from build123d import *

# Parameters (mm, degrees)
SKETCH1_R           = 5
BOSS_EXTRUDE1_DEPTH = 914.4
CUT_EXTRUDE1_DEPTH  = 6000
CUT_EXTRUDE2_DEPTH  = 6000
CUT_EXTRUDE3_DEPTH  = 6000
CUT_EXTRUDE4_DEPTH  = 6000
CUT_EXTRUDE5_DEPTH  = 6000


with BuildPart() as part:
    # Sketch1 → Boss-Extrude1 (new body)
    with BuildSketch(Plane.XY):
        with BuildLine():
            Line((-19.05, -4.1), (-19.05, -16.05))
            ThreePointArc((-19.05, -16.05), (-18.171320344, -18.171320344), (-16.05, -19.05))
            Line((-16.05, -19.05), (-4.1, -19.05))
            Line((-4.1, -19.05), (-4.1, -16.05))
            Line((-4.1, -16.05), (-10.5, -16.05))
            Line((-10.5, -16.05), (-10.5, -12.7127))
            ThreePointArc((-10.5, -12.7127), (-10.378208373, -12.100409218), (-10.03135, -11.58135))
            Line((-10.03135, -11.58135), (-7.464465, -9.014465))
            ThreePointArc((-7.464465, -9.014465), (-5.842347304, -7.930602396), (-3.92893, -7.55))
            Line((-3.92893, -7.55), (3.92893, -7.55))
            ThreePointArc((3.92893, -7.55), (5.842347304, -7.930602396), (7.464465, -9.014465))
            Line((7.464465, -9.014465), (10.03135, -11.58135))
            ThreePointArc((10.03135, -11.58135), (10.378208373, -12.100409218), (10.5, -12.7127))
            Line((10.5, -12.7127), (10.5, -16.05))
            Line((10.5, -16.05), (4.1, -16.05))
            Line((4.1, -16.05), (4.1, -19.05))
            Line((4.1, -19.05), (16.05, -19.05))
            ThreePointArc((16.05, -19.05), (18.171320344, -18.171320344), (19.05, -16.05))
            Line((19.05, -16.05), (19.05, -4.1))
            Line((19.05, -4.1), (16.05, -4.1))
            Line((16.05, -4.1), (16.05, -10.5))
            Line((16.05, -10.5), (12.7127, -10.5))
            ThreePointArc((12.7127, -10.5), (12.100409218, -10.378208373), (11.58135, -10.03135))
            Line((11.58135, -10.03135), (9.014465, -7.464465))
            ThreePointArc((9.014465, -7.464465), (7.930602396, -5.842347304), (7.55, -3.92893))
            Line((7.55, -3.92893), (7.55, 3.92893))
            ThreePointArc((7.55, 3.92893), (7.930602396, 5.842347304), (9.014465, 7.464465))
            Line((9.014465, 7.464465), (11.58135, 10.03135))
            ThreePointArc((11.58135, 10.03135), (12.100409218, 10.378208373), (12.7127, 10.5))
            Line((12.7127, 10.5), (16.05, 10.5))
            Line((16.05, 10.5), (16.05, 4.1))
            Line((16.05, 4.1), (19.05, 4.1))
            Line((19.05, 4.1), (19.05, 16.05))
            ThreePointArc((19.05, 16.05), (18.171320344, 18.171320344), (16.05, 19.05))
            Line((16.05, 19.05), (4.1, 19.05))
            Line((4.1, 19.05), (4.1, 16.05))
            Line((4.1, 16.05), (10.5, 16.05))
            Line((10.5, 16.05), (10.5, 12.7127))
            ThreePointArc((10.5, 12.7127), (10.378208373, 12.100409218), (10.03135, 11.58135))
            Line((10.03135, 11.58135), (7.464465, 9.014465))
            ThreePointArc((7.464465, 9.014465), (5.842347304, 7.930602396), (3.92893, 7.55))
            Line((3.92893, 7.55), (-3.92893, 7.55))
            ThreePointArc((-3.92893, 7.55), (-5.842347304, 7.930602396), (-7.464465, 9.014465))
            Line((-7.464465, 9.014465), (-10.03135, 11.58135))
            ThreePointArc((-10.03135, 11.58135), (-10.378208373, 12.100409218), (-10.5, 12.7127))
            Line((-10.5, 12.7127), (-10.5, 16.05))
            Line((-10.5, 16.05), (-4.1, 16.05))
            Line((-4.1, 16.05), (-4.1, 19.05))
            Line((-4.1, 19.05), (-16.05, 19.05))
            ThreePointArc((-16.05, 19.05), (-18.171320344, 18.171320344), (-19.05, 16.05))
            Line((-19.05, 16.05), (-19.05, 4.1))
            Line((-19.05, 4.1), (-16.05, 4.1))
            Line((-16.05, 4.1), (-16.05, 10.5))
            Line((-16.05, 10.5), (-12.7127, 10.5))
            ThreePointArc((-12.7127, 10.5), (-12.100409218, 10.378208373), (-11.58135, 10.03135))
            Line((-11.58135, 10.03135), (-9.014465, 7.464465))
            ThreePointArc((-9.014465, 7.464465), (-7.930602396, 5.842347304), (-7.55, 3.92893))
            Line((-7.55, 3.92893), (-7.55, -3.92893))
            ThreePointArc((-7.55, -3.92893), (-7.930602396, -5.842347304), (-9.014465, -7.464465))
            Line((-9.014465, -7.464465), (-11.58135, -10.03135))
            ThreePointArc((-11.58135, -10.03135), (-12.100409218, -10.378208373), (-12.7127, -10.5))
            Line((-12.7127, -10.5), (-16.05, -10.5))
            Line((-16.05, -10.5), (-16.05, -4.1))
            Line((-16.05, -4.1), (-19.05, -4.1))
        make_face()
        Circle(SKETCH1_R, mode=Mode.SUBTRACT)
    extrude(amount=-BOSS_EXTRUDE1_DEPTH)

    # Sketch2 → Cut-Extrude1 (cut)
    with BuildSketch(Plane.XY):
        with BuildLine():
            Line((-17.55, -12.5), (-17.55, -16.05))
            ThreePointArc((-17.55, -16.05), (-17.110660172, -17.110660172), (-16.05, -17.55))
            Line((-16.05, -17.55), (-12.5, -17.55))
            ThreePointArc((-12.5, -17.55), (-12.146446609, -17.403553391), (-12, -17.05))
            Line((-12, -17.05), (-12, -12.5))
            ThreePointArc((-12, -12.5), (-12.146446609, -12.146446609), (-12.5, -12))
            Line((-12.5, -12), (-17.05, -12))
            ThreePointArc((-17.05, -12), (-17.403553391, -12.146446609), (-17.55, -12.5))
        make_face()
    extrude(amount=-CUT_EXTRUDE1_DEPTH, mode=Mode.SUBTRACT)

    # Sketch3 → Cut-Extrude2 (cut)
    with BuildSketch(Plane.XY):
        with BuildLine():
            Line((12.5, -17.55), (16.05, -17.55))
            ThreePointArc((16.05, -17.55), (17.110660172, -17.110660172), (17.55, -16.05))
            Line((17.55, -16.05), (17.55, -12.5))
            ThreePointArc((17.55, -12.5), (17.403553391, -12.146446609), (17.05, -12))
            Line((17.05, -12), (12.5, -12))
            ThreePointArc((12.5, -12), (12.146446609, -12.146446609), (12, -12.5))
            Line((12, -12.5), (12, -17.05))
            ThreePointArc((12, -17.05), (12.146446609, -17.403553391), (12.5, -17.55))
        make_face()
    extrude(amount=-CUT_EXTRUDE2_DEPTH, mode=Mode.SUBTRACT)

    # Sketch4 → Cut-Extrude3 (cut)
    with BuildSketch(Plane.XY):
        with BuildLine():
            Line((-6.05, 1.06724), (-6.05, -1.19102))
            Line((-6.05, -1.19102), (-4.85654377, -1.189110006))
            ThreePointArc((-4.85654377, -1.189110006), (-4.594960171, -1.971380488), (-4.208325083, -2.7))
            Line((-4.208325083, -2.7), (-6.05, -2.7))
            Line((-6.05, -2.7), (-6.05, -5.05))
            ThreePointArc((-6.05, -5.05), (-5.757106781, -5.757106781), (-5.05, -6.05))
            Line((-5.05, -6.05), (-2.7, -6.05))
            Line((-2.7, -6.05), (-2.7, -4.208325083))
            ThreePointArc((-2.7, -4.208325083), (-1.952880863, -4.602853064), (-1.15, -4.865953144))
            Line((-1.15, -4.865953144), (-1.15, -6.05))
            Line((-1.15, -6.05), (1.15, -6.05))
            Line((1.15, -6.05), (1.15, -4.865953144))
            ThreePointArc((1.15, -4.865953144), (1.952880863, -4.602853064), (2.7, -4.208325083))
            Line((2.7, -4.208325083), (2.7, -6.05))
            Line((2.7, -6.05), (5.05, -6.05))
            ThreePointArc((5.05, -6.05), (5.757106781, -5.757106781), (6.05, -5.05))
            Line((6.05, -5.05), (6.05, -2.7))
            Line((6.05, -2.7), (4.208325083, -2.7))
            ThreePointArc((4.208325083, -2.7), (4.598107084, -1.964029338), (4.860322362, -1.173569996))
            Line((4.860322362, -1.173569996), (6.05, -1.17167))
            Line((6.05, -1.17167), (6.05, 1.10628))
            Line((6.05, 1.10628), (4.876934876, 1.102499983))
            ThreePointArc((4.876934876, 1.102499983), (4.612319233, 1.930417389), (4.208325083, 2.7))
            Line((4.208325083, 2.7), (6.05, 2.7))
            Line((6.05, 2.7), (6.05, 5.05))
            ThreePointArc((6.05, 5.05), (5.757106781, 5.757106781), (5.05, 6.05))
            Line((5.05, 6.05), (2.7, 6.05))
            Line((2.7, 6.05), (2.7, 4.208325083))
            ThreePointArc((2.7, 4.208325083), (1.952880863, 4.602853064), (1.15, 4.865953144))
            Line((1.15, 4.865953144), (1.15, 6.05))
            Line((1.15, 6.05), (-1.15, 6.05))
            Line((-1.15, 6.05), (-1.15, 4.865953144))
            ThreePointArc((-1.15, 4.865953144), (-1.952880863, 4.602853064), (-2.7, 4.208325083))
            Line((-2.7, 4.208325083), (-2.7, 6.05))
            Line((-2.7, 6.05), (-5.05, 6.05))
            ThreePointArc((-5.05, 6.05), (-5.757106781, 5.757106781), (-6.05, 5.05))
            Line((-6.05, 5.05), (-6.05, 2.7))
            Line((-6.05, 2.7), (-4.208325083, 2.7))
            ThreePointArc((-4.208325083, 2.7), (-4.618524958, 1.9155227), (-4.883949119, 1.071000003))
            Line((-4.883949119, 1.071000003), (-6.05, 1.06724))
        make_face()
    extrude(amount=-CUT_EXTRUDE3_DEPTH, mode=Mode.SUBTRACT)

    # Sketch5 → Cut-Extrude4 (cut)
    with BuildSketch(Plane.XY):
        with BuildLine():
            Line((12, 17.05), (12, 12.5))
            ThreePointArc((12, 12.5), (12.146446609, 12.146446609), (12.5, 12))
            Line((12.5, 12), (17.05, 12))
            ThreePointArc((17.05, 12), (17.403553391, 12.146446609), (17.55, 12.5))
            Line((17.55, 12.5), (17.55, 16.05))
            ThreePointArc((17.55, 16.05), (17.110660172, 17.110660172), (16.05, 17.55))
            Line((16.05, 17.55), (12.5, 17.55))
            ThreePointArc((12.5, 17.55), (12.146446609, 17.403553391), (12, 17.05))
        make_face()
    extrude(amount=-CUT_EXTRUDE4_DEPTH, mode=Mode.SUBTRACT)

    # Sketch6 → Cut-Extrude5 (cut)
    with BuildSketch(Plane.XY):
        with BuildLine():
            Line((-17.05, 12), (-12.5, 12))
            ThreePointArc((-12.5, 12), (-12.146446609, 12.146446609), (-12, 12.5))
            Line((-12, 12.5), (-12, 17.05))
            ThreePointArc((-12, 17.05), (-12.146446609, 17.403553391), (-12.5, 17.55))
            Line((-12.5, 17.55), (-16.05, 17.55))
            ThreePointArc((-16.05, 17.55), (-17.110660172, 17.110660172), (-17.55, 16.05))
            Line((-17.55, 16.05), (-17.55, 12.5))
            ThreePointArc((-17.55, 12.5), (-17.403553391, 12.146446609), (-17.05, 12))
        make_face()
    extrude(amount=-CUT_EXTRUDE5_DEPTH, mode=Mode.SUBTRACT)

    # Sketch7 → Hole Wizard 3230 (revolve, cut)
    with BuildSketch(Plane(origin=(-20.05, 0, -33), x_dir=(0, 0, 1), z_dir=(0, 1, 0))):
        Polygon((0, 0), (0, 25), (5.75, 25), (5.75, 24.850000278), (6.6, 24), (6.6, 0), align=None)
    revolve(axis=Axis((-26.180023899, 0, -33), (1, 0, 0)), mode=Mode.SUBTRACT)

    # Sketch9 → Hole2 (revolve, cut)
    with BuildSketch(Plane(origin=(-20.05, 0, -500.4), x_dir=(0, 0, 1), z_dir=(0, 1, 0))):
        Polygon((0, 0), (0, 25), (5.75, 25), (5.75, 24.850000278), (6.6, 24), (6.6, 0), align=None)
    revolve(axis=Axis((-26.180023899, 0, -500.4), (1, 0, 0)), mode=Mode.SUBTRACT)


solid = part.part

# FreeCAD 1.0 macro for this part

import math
import FreeCAD as App
import Part
import Sketcher

V = App.Vector
Q = App.Units.Quantity


def add_polygon(sketch, points):
    """Adds a closed chain of lines whose ends are joined by coincident constraints."""
    first, n = sketch.GeometryCount, len(points)
    for a, b in zip(points, points[1:] + points[:1]):
        sketch.addGeometry(Part.LineSegment(App.Vector(*a, 0), App.Vector(*b, 0)), False)
    for i in range(n):
        sketch.addConstraint(Sketcher.Constraint("Coincident", first + i, 2, first + (i + 1) % n, 1))

doc = App.newDocument("Part")
body = doc.addObject("PartDesign::Body", "Body")

sketch1 = body.newObject("Sketcher::SketchObject", "Sketch")
sketch1.AttachmentSupport = (doc.getObject("XY_Plane"), [""])
sketch1.MapMode = "FlatFace"
sketch1.addGeometry(Part.LineSegment(V(-19.1, -4.1, 0), V(-19.1, -16.1, 0)), False)
sketch1.addGeometry(Part.ArcOfCircle(Part.Circle(V(-16.1, -16.1, 0), V(0, 0, 1), 3), math.radians(180), math.radians(270)), False)
sketch1.addGeometry(Part.LineSegment(V(-16.1, -19.1, 0), V(-4.1, -19.1, 0)), False)
sketch1.addGeometry(Part.LineSegment(V(-4.1, -19.1, 0), V(-4.1, -16.1, 0)), False)
sketch1.addGeometry(Part.LineSegment(V(-4.1, -16.1, 0), V(-10.5, -16.1, 0)), False)
sketch1.addGeometry(Part.LineSegment(V(-10.5, -16.1, 0), V(-10.5, -12.7, 0)), False)
sketch1.addGeometry(Part.ArcOfCircle(Part.Circle(V(-8.9, -12.7, 0), V(0, 0, 1), 1.6), math.radians(135), math.radians(180)), False)
sketch1.addGeometry(Part.LineSegment(V(-10, -11.6, 0), V(-7.5, -9, 0)), False)
sketch1.addGeometry(Part.ArcOfCircle(Part.Circle(V(-3.9, -12.6, 0), V(0, 0, 1), 5), math.radians(90), math.radians(135)), False)
sketch1.addGeometry(Part.LineSegment(V(-3.9, -7.5, 0), V(3.9, -7.5, 0)), False)
sketch1.addGeometry(Part.ArcOfCircle(Part.Circle(V(3.9, -12.6, 0), V(0, 0, 1), 5), math.radians(45), math.radians(90)), False)
sketch1.addGeometry(Part.LineSegment(V(7.5, -9, 0), V(10, -11.6, 0)), False)
sketch1.addGeometry(Part.ArcOfCircle(Part.Circle(V(8.9, -12.7, 0), V(0, 0, 1), 1.6), math.radians(0), math.radians(45)), False)
sketch1.addGeometry(Part.LineSegment(V(10.5, -12.7, 0), V(10.5, -16.1, 0)), False)
sketch1.addGeometry(Part.LineSegment(V(10.5, -16.1, 0), V(4.1, -16.1, 0)), False)
sketch1.addGeometry(Part.LineSegment(V(4.1, -16.1, 0), V(4.1, -19.1, 0)), False)
sketch1.addGeometry(Part.LineSegment(V(4.1, -19.1, 0), V(16.1, -19.1, 0)), False)
sketch1.addGeometry(Part.ArcOfCircle(Part.Circle(V(16.1, -16.1, 0), V(0, 0, 1), 3), math.radians(-90), math.radians(0)), False)
sketch1.addGeometry(Part.LineSegment(V(19.1, -16.1, 0), V(19.1, -4.1, 0)), False)
sketch1.addGeometry(Part.LineSegment(V(19.1, -4.1, 0), V(16.1, -4.1, 0)), False)
sketch1.addGeometry(Part.LineSegment(V(16.1, -4.1, 0), V(16.1, -10.5, 0)), False)
sketch1.addGeometry(Part.LineSegment(V(16.1, -10.5, 0), V(12.7, -10.5, 0)), False)
sketch1.addGeometry(Part.ArcOfCircle(Part.Circle(V(12.7, -8.9, 0), V(0, 0, 1), 1.6), math.radians(-135), math.radians(-90)), False)
sketch1.addGeometry(Part.LineSegment(V(11.6, -10, 0), V(9, -7.5, 0)), False)
sketch1.addGeometry(Part.ArcOfCircle(Part.Circle(V(12.6, -3.9, 0), V(0, 0, 1), 5), math.radians(-180), math.radians(-135)), False)
sketch1.addGeometry(Part.LineSegment(V(7.5, -3.9, 0), V(7.5, 3.9, 0)), False)
sketch1.addGeometry(Part.ArcOfCircle(Part.Circle(V(12.6, 3.9, 0), V(0, 0, 1), 5), math.radians(135), math.radians(180)), False)
sketch1.addGeometry(Part.LineSegment(V(9, 7.5, 0), V(11.6, 10, 0)), False)
sketch1.addGeometry(Part.ArcOfCircle(Part.Circle(V(12.7, 8.9, 0), V(0, 0, 1), 1.6), math.radians(90), math.radians(135)), False)
sketch1.addGeometry(Part.LineSegment(V(12.7, 10.5, 0), V(16.1, 10.5, 0)), False)
sketch1.addGeometry(Part.LineSegment(V(16.1, 10.5, 0), V(16.1, 4.1, 0)), False)
sketch1.addGeometry(Part.LineSegment(V(16.1, 4.1, 0), V(19.1, 4.1, 0)), False)
sketch1.addGeometry(Part.LineSegment(V(19.1, 4.1, 0), V(19.1, 16.1, 0)), False)
sketch1.addGeometry(Part.ArcOfCircle(Part.Circle(V(16.1, 16.1, 0), V(0, 0, 1), 3), math.radians(0), math.radians(90)), False)
sketch1.addGeometry(Part.LineSegment(V(16.1, 19.1, 0), V(4.1, 19.1, 0)), False)
sketch1.addGeometry(Part.LineSegment(V(4.1, 19.1, 0), V(4.1, 16.1, 0)), False)
sketch1.addGeometry(Part.LineSegment(V(4.1, 16.1, 0), V(10.5, 16.1, 0)), False)
sketch1.addGeometry(Part.LineSegment(V(10.5, 16.1, 0), V(10.5, 12.7, 0)), False)
sketch1.addGeometry(Part.ArcOfCircle(Part.Circle(V(8.9, 12.7, 0), V(0, 0, 1), 1.6), math.radians(-45), math.radians(0)), False)
sketch1.addGeometry(Part.LineSegment(V(10, 11.6, 0), V(7.5, 9, 0)), False)
sketch1.addGeometry(Part.ArcOfCircle(Part.Circle(V(3.9, 12.6, 0), V(0, 0, 1), 5), math.radians(-90), math.radians(-45)), False)
sketch1.addGeometry(Part.LineSegment(V(3.9, 7.5, 0), V(-3.9, 7.5, 0)), False)
sketch1.addGeometry(Part.ArcOfCircle(Part.Circle(V(-3.9, 12.6, 0), V(0, 0, 1), 5), math.radians(-135), math.radians(-90)), False)
sketch1.addGeometry(Part.LineSegment(V(-7.5, 9, 0), V(-10, 11.6, 0)), False)
sketch1.addGeometry(Part.ArcOfCircle(Part.Circle(V(-8.9, 12.7, 0), V(0, 0, 1), 1.6), math.radians(180), math.radians(225)), False)
sketch1.addGeometry(Part.LineSegment(V(-10.5, 12.7, 0), V(-10.5, 16.1, 0)), False)
sketch1.addGeometry(Part.LineSegment(V(-10.5, 16.1, 0), V(-4.1, 16.1, 0)), False)
sketch1.addGeometry(Part.LineSegment(V(-4.1, 16.1, 0), V(-4.1, 19.1, 0)), False)
sketch1.addGeometry(Part.LineSegment(V(-4.1, 19.1, 0), V(-16.1, 19.1, 0)), False)
sketch1.addGeometry(Part.ArcOfCircle(Part.Circle(V(-16.1, 16.1, 0), V(0, 0, 1), 3), math.radians(90), math.radians(180)), False)
sketch1.addGeometry(Part.LineSegment(V(-19.1, 16.1, 0), V(-19.1, 4.1, 0)), False)
sketch1.addGeometry(Part.LineSegment(V(-19.1, 4.1, 0), V(-16.1, 4.1, 0)), False)
sketch1.addGeometry(Part.LineSegment(V(-16.1, 4.1, 0), V(-16.1, 10.5, 0)), False)
sketch1.addGeometry(Part.LineSegment(V(-16.1, 10.5, 0), V(-12.7, 10.5, 0)), False)
sketch1.addGeometry(Part.ArcOfCircle(Part.Circle(V(-12.7, 8.9, 0), V(0, 0, 1), 1.6), math.radians(45), math.radians(90)), False)
sketch1.addGeometry(Part.LineSegment(V(-11.6, 10, 0), V(-9, 7.5, 0)), False)
sketch1.addGeometry(Part.ArcOfCircle(Part.Circle(V(-12.6, 3.9, 0), V(0, 0, 1), 5), math.radians(0), math.radians(45)), False)
sketch1.addGeometry(Part.LineSegment(V(-7.5, 3.9, 0), V(-7.5, -3.9, 0)), False)
sketch1.addGeometry(Part.ArcOfCircle(Part.Circle(V(-12.6, -3.9, 0), V(0, 0, 1), 5), math.radians(-45), math.radians(0)), False)
sketch1.addGeometry(Part.LineSegment(V(-9, -7.5, 0), V(-11.6, -10, 0)), False)
sketch1.addGeometry(Part.ArcOfCircle(Part.Circle(V(-12.7, -8.9, 0), V(0, 0, 1), 1.6), math.radians(-90), math.radians(-45)), False)
sketch1.addGeometry(Part.LineSegment(V(-12.7, -10.5, 0), V(-16.1, -10.5, 0)), False)
sketch1.addGeometry(Part.LineSegment(V(-16.1, -10.5, 0), V(-16.1, -4.1, 0)), False)
sketch1.addGeometry(Part.LineSegment(V(-16.1, -4.1, 0), V(-19.1, -4.1, 0)), False)
sketch1.addGeometry(Part.Circle(V(0, 0, 0), V(0, 0, 1), 5), False)
sketch1.addConstraint(Sketcher.Constraint("Tangent", 0, 2, 1, 1))
sketch1.addConstraint(Sketcher.Constraint("Tangent", 1, 2, 2, 1))
sketch1.addConstraint(Sketcher.Constraint("Coincident", 2, 2, 3, 1))
sketch1.addConstraint(Sketcher.Constraint("Coincident", 3, 2, 4, 1))
sketch1.addConstraint(Sketcher.Constraint("Coincident", 4, 2, 5, 1))
sketch1.addConstraint(Sketcher.Constraint("Coincident", 5, 2, 6, 2))
sketch1.addConstraint(Sketcher.Constraint("Coincident", 6, 1, 7, 1))
sketch1.addConstraint(Sketcher.Constraint("Tangent", 7, 2, 8, 2))
sketch1.addConstraint(Sketcher.Constraint("Tangent", 8, 1, 9, 1))
sketch1.addConstraint(Sketcher.Constraint("Tangent", 9, 2, 10, 2))
sketch1.addConstraint(Sketcher.Constraint("Tangent", 10, 1, 11, 1))
sketch1.addConstraint(Sketcher.Constraint("Coincident", 11, 2, 12, 2))
sketch1.addConstraint(Sketcher.Constraint("Coincident", 12, 1, 13, 1))
sketch1.addConstraint(Sketcher.Constraint("Coincident", 13, 2, 14, 1))
sketch1.addConstraint(Sketcher.Constraint("Coincident", 14, 2, 15, 1))
sketch1.addConstraint(Sketcher.Constraint("Coincident", 15, 2, 16, 1))
sketch1.addConstraint(Sketcher.Constraint("Tangent", 16, 2, 17, 1))
sketch1.addConstraint(Sketcher.Constraint("Tangent", 17, 2, 18, 1))
sketch1.addConstraint(Sketcher.Constraint("Coincident", 18, 2, 19, 1))
sketch1.addConstraint(Sketcher.Constraint("Coincident", 19, 2, 20, 1))
sketch1.addConstraint(Sketcher.Constraint("Coincident", 20, 2, 21, 1))
sketch1.addConstraint(Sketcher.Constraint("Coincident", 21, 2, 22, 2))
sketch1.addConstraint(Sketcher.Constraint("Coincident", 22, 1, 23, 1))
sketch1.addConstraint(Sketcher.Constraint("Tangent", 23, 2, 24, 2))
sketch1.addConstraint(Sketcher.Constraint("Tangent", 24, 1, 25, 1))
sketch1.addConstraint(Sketcher.Constraint("Tangent", 25, 2, 26, 2))
sketch1.addConstraint(Sketcher.Constraint("Tangent", 26, 1, 27, 1))
sketch1.addConstraint(Sketcher.Constraint("Coincident", 27, 2, 28, 2))
sketch1.addConstraint(Sketcher.Constraint("Coincident", 28, 1, 29, 1))
sketch1.addConstraint(Sketcher.Constraint("Coincident", 29, 2, 30, 1))
sketch1.addConstraint(Sketcher.Constraint("Coincident", 30, 2, 31, 1))
sketch1.addConstraint(Sketcher.Constraint("Coincident", 31, 2, 32, 1))
sketch1.addConstraint(Sketcher.Constraint("Tangent", 32, 2, 33, 1))
sketch1.addConstraint(Sketcher.Constraint("Tangent", 33, 2, 34, 1))
sketch1.addConstraint(Sketcher.Constraint("Coincident", 34, 2, 35, 1))
sketch1.addConstraint(Sketcher.Constraint("Coincident", 35, 2, 36, 1))
sketch1.addConstraint(Sketcher.Constraint("Coincident", 36, 2, 37, 1))
sketch1.addConstraint(Sketcher.Constraint("Coincident", 37, 2, 38, 2))
sketch1.addConstraint(Sketcher.Constraint("Coincident", 38, 1, 39, 1))
sketch1.addConstraint(Sketcher.Constraint("Tangent", 39, 2, 40, 2))
sketch1.addConstraint(Sketcher.Constraint("Tangent", 40, 1, 41, 1))
sketch1.addConstraint(Sketcher.Constraint("Tangent", 41, 2, 42, 2))
sketch1.addConstraint(Sketcher.Constraint("Tangent", 42, 1, 43, 1))
sketch1.addConstraint(Sketcher.Constraint("Coincident", 43, 2, 44, 2))
sketch1.addConstraint(Sketcher.Constraint("Coincident", 44, 1, 45, 1))
sketch1.addConstraint(Sketcher.Constraint("Coincident", 45, 2, 46, 1))
sketch1.addConstraint(Sketcher.Constraint("Coincident", 46, 2, 47, 1))
sketch1.addConstraint(Sketcher.Constraint("Coincident", 47, 2, 48, 1))
sketch1.addConstraint(Sketcher.Constraint("Tangent", 48, 2, 49, 1))
sketch1.addConstraint(Sketcher.Constraint("Tangent", 49, 2, 50, 1))
sketch1.addConstraint(Sketcher.Constraint("Coincident", 50, 2, 51, 1))
sketch1.addConstraint(Sketcher.Constraint("Coincident", 51, 2, 52, 1))
sketch1.addConstraint(Sketcher.Constraint("Coincident", 52, 2, 53, 1))
sketch1.addConstraint(Sketcher.Constraint("Coincident", 53, 2, 54, 2))
sketch1.addConstraint(Sketcher.Constraint("Coincident", 54, 1, 55, 1))
sketch1.addConstraint(Sketcher.Constraint("Tangent", 55, 2, 56, 2))
sketch1.addConstraint(Sketcher.Constraint("Tangent", 56, 1, 57, 1))
sketch1.addConstraint(Sketcher.Constraint("Tangent", 57, 2, 58, 2))
sketch1.addConstraint(Sketcher.Constraint("Tangent", 58, 1, 59, 1))
sketch1.addConstraint(Sketcher.Constraint("Coincident", 59, 2, 60, 2))
sketch1.addConstraint(Sketcher.Constraint("Coincident", 60, 1, 61, 1))
sketch1.addConstraint(Sketcher.Constraint("Coincident", 61, 2, 62, 1))
sketch1.addConstraint(Sketcher.Constraint("Coincident", 62, 2, 63, 1))
sketch1.addConstraint(Sketcher.Constraint("Coincident", 63, 2, 0, 1))
sketch1.addConstraint(Sketcher.Constraint("Vertical", 0))
sketch1.addConstraint(Sketcher.Constraint("Horizontal", 2))
sketch1.addConstraint(Sketcher.Constraint("Vertical", 3))
sketch1.addConstraint(Sketcher.Constraint("Horizontal", 4))
sketch1.addConstraint(Sketcher.Constraint("Vertical", 5))
sketch1.addConstraint(Sketcher.Constraint("Horizontal", 9))
sketch1.addConstraint(Sketcher.Constraint("Vertical", 13))
sketch1.addConstraint(Sketcher.Constraint("Horizontal", 14))
sketch1.addConstraint(Sketcher.Constraint("Vertical", 15))
sketch1.addConstraint(Sketcher.Constraint("Horizontal", 16))
sketch1.addConstraint(Sketcher.Constraint("Vertical", 18))
sketch1.addConstraint(Sketcher.Constraint("Horizontal", 19))
sketch1.addConstraint(Sketcher.Constraint("Vertical", 20))
sketch1.addConstraint(Sketcher.Constraint("Horizontal", 21))
sketch1.addConstraint(Sketcher.Constraint("Vertical", 25))
sketch1.addConstraint(Sketcher.Constraint("Horizontal", 29))
sketch1.addConstraint(Sketcher.Constraint("Vertical", 30))
sketch1.addConstraint(Sketcher.Constraint("Horizontal", 31))
sketch1.addConstraint(Sketcher.Constraint("Vertical", 32))
sketch1.addConstraint(Sketcher.Constraint("Horizontal", 34))
sketch1.addConstraint(Sketcher.Constraint("Vertical", 35))
sketch1.addConstraint(Sketcher.Constraint("Horizontal", 36))
sketch1.addConstraint(Sketcher.Constraint("Vertical", 37))
sketch1.addConstraint(Sketcher.Constraint("Horizontal", 41))
sketch1.addConstraint(Sketcher.Constraint("Vertical", 45))
sketch1.addConstraint(Sketcher.Constraint("Horizontal", 46))
sketch1.addConstraint(Sketcher.Constraint("Vertical", 47))
sketch1.addConstraint(Sketcher.Constraint("Horizontal", 48))
sketch1.addConstraint(Sketcher.Constraint("Vertical", 50))
sketch1.addConstraint(Sketcher.Constraint("Horizontal", 51))
sketch1.addConstraint(Sketcher.Constraint("Vertical", 52))
sketch1.addConstraint(Sketcher.Constraint("Horizontal", 53))
sketch1.addConstraint(Sketcher.Constraint("Vertical", 57))
sketch1.addConstraint(Sketcher.Constraint("Horizontal", 61))
sketch1.addConstraint(Sketcher.Constraint("Vertical", 62))
sketch1.addConstraint(Sketcher.Constraint("Horizontal", 63))
sketch1.addConstraint(Sketcher.Constraint("Coincident", 64, 3, -1, 1))
sketch1.addConstraint(Sketcher.Constraint("Equal", 8, 10))
sketch1.addConstraint(Sketcher.Constraint("Equal", 6, 12))
sketch1.addConstraint(Sketcher.Constraint("Equal", 1, 17))
sketch1.addConstraint(Sketcher.Constraint("Equal", 12, 22))
sketch1.addConstraint(Sketcher.Constraint("Equal", 10, 24))
sketch1.addConstraint(Sketcher.Constraint("Equal", 24, 26))
sketch1.addConstraint(Sketcher.Constraint("Equal", 22, 28))
sketch1.addConstraint(Sketcher.Constraint("Equal", 17, 33))
sketch1.addConstraint(Sketcher.Constraint("Equal", 28, 38))
sketch1.addConstraint(Sketcher.Constraint("Equal", 26, 40))
sketch1.addConstraint(Sketcher.Constraint("Equal", 40, 42))
sketch1.addConstraint(Sketcher.Constraint("Equal", 38, 44))
sketch1.addConstraint(Sketcher.Constraint("Equal", 33, 49))
sketch1.addConstraint(Sketcher.Constraint("Equal", 44, 54))
sketch1.addConstraint(Sketcher.Constraint("Equal", 42, 56))
sketch1.addConstraint(Sketcher.Constraint("Equal", 56, 58))
sketch1.addConstraint(Sketcher.Constraint("Equal", 54, 60))
sketch1.addConstraint(Sketcher.Constraint("Symmetric", 1, 3, 33, 3, -1, 1))
sketch1.addConstraint(Sketcher.Constraint("Symmetric", 6, 3, 38, 3, -1, 1))
sketch1.addConstraint(Sketcher.Constraint("Symmetric", 8, 3, 40, 3, -1, 1))
sketch1.addConstraint(Sketcher.Constraint("Symmetric", 12, 3, 44, 3, -1, 1))
sketch1.addConstraint(Sketcher.Constraint("Symmetric", 17, 3, 49, 3, -1, 1))
sketch1.addConstraint(Sketcher.Constraint("Symmetric", 22, 3, 54, 3, -1, 1))
sketch1.addConstraint(Sketcher.Constraint("Symmetric", 24, 3, 56, 3, -1, 1))
sketch1.addConstraint(Sketcher.Constraint("Symmetric", 28, 3, 60, 3, -1, 1))
sketch1.addConstraint(Sketcher.Constraint("Symmetric", 3, 2, 35, 2, -1, 1))
sketch1.addConstraint(Sketcher.Constraint("Symmetric", 14, 2, 46, 2, -1, 1))
sketch1.addConstraint(Sketcher.Constraint("Symmetric", 19, 2, 51, 2, -1, 1))
sketch1.addConstraint(Sketcher.Constraint("Symmetric", 30, 2, 62, 2, -1, 1))
sketch1.addConstraint(Sketcher.Constraint("Symmetric", 6, 3, 12, 3, -2))
sketch1.addConstraint(Sketcher.Constraint("Symmetric", 1, 3, 17, 3, -2))
sketch1.addConstraint(Sketcher.Constraint("Symmetric", 28, 3, 54, 3, -2))
sketch1.addConstraint(Sketcher.Constraint("Symmetric", 3, 2, 14, 2, -2))
sketch1.addConstraint(Sketcher.Constraint("Symmetric", 30, 2, 51, 2, -2))
sketch1.addConstraint(Sketcher.Constraint("Perpendicular", 7, 11))
sketch1.addConstraint(Sketcher.Constraint("Parallel", 11, 23))
sketch1.addConstraint(Sketcher.Constraint("Perpendicular", 23, 27))
sketch1.addConstraint(Sketcher.Constraint("Perpendicular", 39, 43))
sketch1.addConstraint(Sketcher.Constraint("Perpendicular", 55, 59))
sketch1.addConstraint(Sketcher.Constraint("Horizontal", 26, 3, 56, 3))
sketch1.addConstraint(Sketcher.Constraint("Horizontal", 0, 2, 3, 2))
sketch1.addConstraint(Sketcher.Constraint("Horizontal", 6, 1, 11, 2))
sketch1.addConstraint(Sketcher.Constraint("Horizontal", 5, 2, 12, 1))
sketch1.addConstraint(Sketcher.Constraint("Horizontal", 38, 1, 43, 2))
sketch1.addConstraint(Sketcher.Constraint("Horizontal", 37, 2, 44, 1))
sketch1.addConstraint(Sketcher.Constraint("Horizontal", 27, 2, 54, 1))
sketch1.addConstraint(Sketcher.Constraint("Horizontal", 22, 1, 59, 2))
sketch1.addConstraint(Sketcher.Constraint("Vertical", 16, 2, 19, 2))
sketch1.addConstraint(Sketcher.Constraint("Vertical", 22, 1, 27, 2))
sketch1.addConstraint(Sketcher.Constraint("Vertical", 21, 2, 28, 1))
sketch1.addConstraint(Sketcher.Constraint("Vertical", 11, 2, 38, 1))
sketch1.addConstraint(Sketcher.Constraint("Vertical", 53, 2, 60, 1))
sketch1.addConstraint(Sketcher.Constraint("Equal", 29, 53))
sketch1.addConstraint(Sketcher.Constraint("Equal", 48, 0))
sketch1.addConstraint(Sketcher.Constraint("Equal", 61, 5))
sketch1.addConstraint(Sketcher.Constraint("Equal", 46, 20))
sketch1.addConstraint(Sketcher.Constraint("Equal", 41, 25))
sketch1.addConstraint(Sketcher.Constraint("Equal", 13, 37))
sketch1.addConstraint(Sketcher.Constraint("Equal", 11, 23))
sketch1.addConstraint(Sketcher.Constraint("Diameter", 64, 10.0))
sketch1.addConstraint(Sketcher.Constraint("Radius", 1, 3.0))
sketch1.addConstraint(Sketcher.Constraint("DistanceX", 4, 2, 4, 1, 6.4))
sketch1.addConstraint(Sketcher.Constraint("DistanceX", 2, 1, 2, 2, 11.95))
sketch1.addConstraint(Sketcher.Constraint("DistanceX", 2, 2, -1, 1, 4.1))
sketch1.addConstraint(Sketcher.Constraint("DistanceY", 18, 2, -1, 1, 4.1))
sketch1.addConstraint(Sketcher.Constraint("DistanceY", 8, 1, -1, 1, 7.55))
sketch1.addConstraint(Sketcher.Constraint("DistanceX", -1, 1, 24, 1, 7.55))
sketch1.addConstraint(Sketcher.Constraint("Radius", 8, 5.00001))
sketch1.addConstraint(Sketcher.Constraint("DistanceX", 21, 2, 21, 1, 3.3373))
sketch1.addConstraint(Sketcher.Constraint("Radius", 6, 1.599806))
sketch1.addConstraint(Sketcher.Constraint("DistanceX", 9, 1, 9, 2, 7.85786))
sketch1.addConstraint(Sketcher.Constraint("DistanceX", 6, 1, -1, 1, 10.03135))
pad1 = body.newObject("PartDesign::Pad", "Pad")
pad1.Profile = sketch1
pad1.Length = 914.4
pad1.Reversed = True

sketch2 = body.newObject("Sketcher::SketchObject", "Sketch001")
sketch2.AttachmentSupport = (doc.getObject("XY_Plane"), [""])
sketch2.MapMode = "FlatFace"
sketch2.addGeometry(Part.LineSegment(V(-17.55, -12.5, 0), V(-17.55, -16.05, 0)), False)
sketch2.addGeometry(Part.ArcOfCircle(Part.Circle(V(-16.05, -16.05, 0), V(0, 0, 1), 1.5), math.radians(180), math.radians(270)), False)
sketch2.addGeometry(Part.LineSegment(V(-16.05, -17.55, 0), V(-12.5, -17.55, 0)), False)
sketch2.addGeometry(Part.ArcOfCircle(Part.Circle(V(-12.5, -17.05, 0), V(0, 0, 1), 0.5), math.radians(-90), math.radians(0)), False)
sketch2.addGeometry(Part.LineSegment(V(-12, -17.05, 0), V(-12, -12.5, 0)), False)
sketch2.addGeometry(Part.ArcOfCircle(Part.Circle(V(-12.5, -12.5, 0), V(0, 0, 1), 0.5), math.radians(0), math.radians(90)), False)
sketch2.addGeometry(Part.LineSegment(V(-12.5, -12, 0), V(-17.05, -12, 0)), False)
sketch2.addGeometry(Part.ArcOfCircle(Part.Circle(V(-17.05, -12.5, 0), V(0, 0, 1), 0.5), math.radians(90), math.radians(180)), False)
sketch2.addConstraint(Sketcher.Constraint("Tangent", 0, 2, 1, 1))
sketch2.addConstraint(Sketcher.Constraint("Tangent", 1, 2, 2, 1))
sketch2.addConstraint(Sketcher.Constraint("Tangent", 2, 2, 3, 1))
sketch2.addConstraint(Sketcher.Constraint("Tangent", 3, 2, 4, 1))
sketch2.addConstraint(Sketcher.Constraint("Tangent", 4, 2, 5, 1))
sketch2.addConstraint(Sketcher.Constraint("Tangent", 5, 2, 6, 1))
sketch2.addConstraint(Sketcher.Constraint("Tangent", 6, 2, 7, 1))
sketch2.addConstraint(Sketcher.Constraint("Tangent", 7, 2, 0, 1))
sketch2.addConstraint(Sketcher.Constraint("Vertical", 0))
sketch2.addConstraint(Sketcher.Constraint("Horizontal", 2))
sketch2.addConstraint(Sketcher.Constraint("Vertical", 4))
sketch2.addConstraint(Sketcher.Constraint("Horizontal", 6))
sketch2.addConstraint(Sketcher.Constraint("Equal", 3, 5))
sketch2.addConstraint(Sketcher.Constraint("Equal", 5, 7))
sketch2.addConstraint(Sketcher.Constraint("Equal", 2, 0))
sketch2.addConstraint(Sketcher.Constraint("Radius", 1, 1.5))
sketch2.addConstraint(Sketcher.Constraint("Radius", 3, 0.5))
sketch2.addConstraint(Sketcher.Constraint("DistanceX", 3, 2, -1, 1, 12.0))
sketch2.addConstraint(Sketcher.Constraint("DistanceY", 5, 2, -1, 1, 12.0))
sketch2.addConstraint(Sketcher.Constraint("DistanceX", 2, 1, 2, 2, 3.55))
pocket1 = body.newObject("PartDesign::Pocket", "Pocket")
pocket1.Profile = sketch2
pocket1.Length = 6000

sketch3 = body.newObject("Sketcher::SketchObject", "Sketch002")
sketch3.AttachmentSupport = (doc.getObject("XY_Plane"), [""])
sketch3.MapMode = "FlatFace"
sketch3.addGeometry(Part.LineSegment(V(12.5, -17.55, 0), V(16.05, -17.55, 0)), False)
sketch3.addGeometry(Part.ArcOfCircle(Part.Circle(V(16.05, -16.05, 0), V(0, 0, 1), 1.5), math.radians(-90), math.radians(0)), False)
sketch3.addGeometry(Part.LineSegment(V(17.55, -16.05, 0), V(17.55, -12.5, 0)), False)
sketch3.addGeometry(Part.ArcOfCircle(Part.Circle(V(17.05, -12.5, 0), V(0, 0, 1), 0.5), math.radians(0), math.radians(90)), False)
sketch3.addGeometry(Part.LineSegment(V(17.05, -12, 0), V(12.5, -12, 0)), False)
sketch3.addGeometry(Part.ArcOfCircle(Part.Circle(V(12.5, -12.5, 0), V(0, 0, 1), 0.5), math.radians(90), math.radians(180)), False)
sketch3.addGeometry(Part.LineSegment(V(12, -12.5, 0), V(12, -17.05, 0)), False)
sketch3.addGeometry(Part.ArcOfCircle(Part.Circle(V(12.5, -17.05, 0), V(0, 0, 1), 0.5), math.radians(180), math.radians(270)), False)
sketch3.addConstraint(Sketcher.Constraint("Tangent", 0, 2, 1, 1))
sketch3.addConstraint(Sketcher.Constraint("Tangent", 1, 2, 2, 1))
sketch3.addConstraint(Sketcher.Constraint("Tangent", 2, 2, 3, 1))
sketch3.addConstraint(Sketcher.Constraint("Tangent", 3, 2, 4, 1))
sketch3.addConstraint(Sketcher.Constraint("Tangent", 4, 2, 5, 1))
sketch3.addConstraint(Sketcher.Constraint("Tangent", 5, 2, 6, 1))
sketch3.addConstraint(Sketcher.Constraint("Tangent", 6, 2, 7, 1))
sketch3.addConstraint(Sketcher.Constraint("Tangent", 7, 2, 0, 1))
sketch3.addConstraint(Sketcher.Constraint("Horizontal", 0))
sketch3.addConstraint(Sketcher.Constraint("Vertical", 2))
sketch3.addConstraint(Sketcher.Constraint("Horizontal", 4))
sketch3.addConstraint(Sketcher.Constraint("Vertical", 6))
sketch3.addConstraint(Sketcher.Constraint("Equal", 3, 5))
sketch3.addConstraint(Sketcher.Constraint("Equal", 5, 7))
sketch3.addConstraint(Sketcher.Constraint("Equal", 0, 2))
sketch3.addConstraint(Sketcher.Constraint("Radius", 1, 1.5))
sketch3.addConstraint(Sketcher.Constraint("Radius", 3, 0.5))
sketch3.addConstraint(Sketcher.Constraint("DistanceY", 3, 2, -1, 1, 12.0))
sketch3.addConstraint(Sketcher.Constraint("DistanceX", -1, 1, 5, 2, 12.0))
sketch3.addConstraint(Sketcher.Constraint("DistanceX", 0, 1, 0, 2, 3.55))
pocket2 = body.newObject("PartDesign::Pocket", "Pocket001")
pocket2.Profile = sketch3
pocket2.Length = 6000

sketch4 = body.newObject("Sketcher::SketchObject", "Sketch003")
sketch4.AttachmentSupport = (doc.getObject("XY_Plane"), [""])
sketch4.MapMode = "FlatFace"
sketch4.addGeometry(Part.LineSegment(V(-6, 1.1, 0), V(-6, -1.2, 0)), False)
sketch4.addGeometry(Part.LineSegment(V(-6, -1.2, 0), V(-4.9, -1.2, 0)), False)
sketch4.addGeometry(Part.ArcOfCircle(Part.Circle(V(0, 0, 0), V(0, 0, 1), 5), math.radians(-166.24), math.radians(-147.32)), False)
sketch4.addGeometry(Part.LineSegment(V(-4.2, -2.7, 0), V(-6, -2.7, 0)), False)
sketch4.addGeometry(Part.LineSegment(V(-6, -2.7, 0), V(-6, -5, 0)), False)
sketch4.addGeometry(Part.ArcOfCircle(Part.Circle(V(-5, -5, 0), V(0, 0, 1), 1), math.radians(-180), math.radians(-90)), False)
sketch4.addGeometry(Part.LineSegment(V(-5, -6, 0), V(-2.7, -6, 0)), False)
sketch4.addGeometry(Part.LineSegment(V(-2.7, -6, 0), V(-2.7, -4.2, 0)), False)
sketch4.addGeometry(Part.ArcOfCircle(Part.Circle(V(0, 0, 0), V(0, 0, 1), 5), math.radians(-122.68), math.radians(-103.3)), False)
sketch4.addGeometry(Part.LineSegment(V(-1.1, -4.9, 0), V(-1.1, -6, 0)), False)
sketch4.addGeometry(Part.LineSegment(V(-1.1, -6, 0), V(1.1, -6, 0)), False)
sketch4.addGeometry(Part.LineSegment(V(1.1, -6, 0), V(1.1, -4.9, 0)), False)
sketch4.addGeometry(Part.ArcOfCircle(Part.Circle(V(0, 0, 0), V(0, 0, 1), 5), math.radians(-76.7), math.radians(-57.32)), False)
sketch4.addGeometry(Part.LineSegment(V(2.7, -4.2, 0), V(2.7, -6, 0)), False)
sketch4.addGeometry(Part.LineSegment(V(2.7, -6, 0), V(5, -6, 0)), False)
sketch4.addGeometry(Part.ArcOfCircle(Part.Circle(V(5, -5, 0), V(0, 0, 1), 1), math.radians(-90), math.radians(0)), False)
sketch4.addGeometry(Part.LineSegment(V(6, -5, 0), V(6, -2.7, 0)), False)
sketch4.addGeometry(Part.LineSegment(V(6, -2.7, 0), V(4.2, -2.7, 0)), False)
sketch4.addGeometry(Part.ArcOfCircle(Part.Circle(V(0, 0, 0), V(0, 0, 1), 5), math.radians(-32.68), math.radians(-13.57)), False)
sketch4.addGeometry(Part.LineSegment(V(4.9, -1.2, 0), V(6, -1.2, 0)), False)
sketch4.addGeometry(Part.LineSegment(V(6, -1.2, 0), V(6, 1.1, 0)), False)
sketch4.addGeometry(Part.LineSegment(V(6, 1.1, 0), V(4.9, 1.1, 0)), False)
sketch4.addGeometry(Part.ArcOfCircle(Part.Circle(V(0, 0, 0), V(0, 0, 1), 5), math.radians(12.74), math.radians(32.68)), False)
sketch4.addGeometry(Part.LineSegment(V(4.2, 2.7, 0), V(6, 2.7, 0)), False)
sketch4.addGeometry(Part.LineSegment(V(6, 2.7, 0), V(6, 5, 0)), False)
sketch4.addGeometry(Part.ArcOfCircle(Part.Circle(V(5, 5, 0), V(0, 0, 1), 1), math.radians(0), math.radians(90)), False)
sketch4.addGeometry(Part.LineSegment(V(5, 6, 0), V(2.7, 6, 0)), False)
sketch4.addGeometry(Part.LineSegment(V(2.7, 6, 0), V(2.7, 4.2, 0)), False)
sketch4.addGeometry(Part.ArcOfCircle(Part.Circle(V(0, 0, 0), V(0, 0, 1), 5), math.radians(57.32), math.radians(76.7)), False)
sketch4.addGeometry(Part.LineSegment(V(1.1, 4.9, 0), V(1.1, 6, 0)), False)
sketch4.addGeometry(Part.LineSegment(V(1.1, 6, 0), V(-1.1, 6, 0)), False)
sketch4.addGeometry(Part.LineSegment(V(-1.1, 6, 0), V(-1.1, 4.9, 0)), False)
sketch4.addGeometry(Part.ArcOfCircle(Part.Circle(V(0, 0, 0), V(0, 0, 1), 5), math.radians(103.3), math.radians(122.68)), False)
sketch4.addGeometry(Part.LineSegment(V(-2.7, 4.2, 0), V(-2.7, 6, 0)), False)
sketch4.addGeometry(Part.LineSegment(V(-2.7, 6, 0), V(-5, 6, 0)), False)
sketch4.addGeometry(Part.ArcOfCircle(Part.Circle(V(-5, 5, 0), V(0, 0, 1), 1), math.radians(90), math.radians(180)), False)
sketch4.addGeometry(Part.LineSegment(V(-6, 5, 0), V(-6, 2.7, 0)), False)
sketch4.addGeometry(Part.LineSegment(V(-6, 2.7, 0), V(-4.2, 2.7, 0)), False)
sketch4.addGeometry(Part.ArcOfCircle(Part.Circle(V(0, 0, 0), V(0, 0, 1), 5), math.radians(147), math.radians(168)), False)
sketch4.addGeometry(Part.LineSegment(V(-4.9, 1.1, 0), V(-6, 1.1, 0)), False)
sketch4.addConstraint(Sketcher.Constraint("Coincident", 0, 2, 1, 1))
sketch4.addConstraint(Sketcher.Constraint("Coincident", 1, 2, 2, 1))
sketch4.addConstraint(Sketcher.Constraint("Coincident", 2, 2, 3, 1))
sketch4.addConstraint(Sketcher.Constraint("Coincident", 3, 2, 4, 1))
sketch4.addConstraint(Sketcher.Constraint("Tangent", 4, 2, 5, 1))
sketch4.addConstraint(Sketcher.Constraint("Tangent", 5, 2, 6, 1))
sketch4.addConstraint(Sketcher.Constraint("Coincident", 6, 2, 7, 1))
sketch4.addConstraint(Sketcher.Constraint("Coincident", 7, 2, 8, 1))
sketch4.addConstraint(Sketcher.Constraint("Coincident", 8, 2, 9, 1))
sketch4.addConstraint(Sketcher.Constraint("Coincident", 9, 2, 10, 1))
sketch4.addConstraint(Sketcher.Constraint("Coincident", 10, 2, 11, 1))
sketch4.addConstraint(Sketcher.Constraint("Coincident", 11, 2, 12, 1))
sketch4.addConstraint(Sketcher.Constraint("Coincident", 12, 2, 13, 1))
sketch4.addConstraint(Sketcher.Constraint("Coincident", 13, 2, 14, 1))
sketch4.addConstraint(Sketcher.Constraint("Tangent", 14, 2, 15, 1))
sketch4.addConstraint(Sketcher.Constraint("Tangent", 15, 2, 16, 1))
sketch4.addConstraint(Sketcher.Constraint("Coincident", 16, 2, 17, 1))
sketch4.addConstraint(Sketcher.Constraint("Coincident", 17, 2, 18, 1))
sketch4.addConstraint(Sketcher.Constraint("Coincident", 18, 2, 19, 1))
sketch4.addConstraint(Sketcher.Constraint("Coincident", 19, 2, 20, 1))
sketch4.addConstraint(Sketcher.Constraint("Coincident", 20, 2, 21, 1))
sketch4.addConstraint(Sketcher.Constraint("Coincident", 21, 2, 22, 1))
sketch4.addConstraint(Sketcher.Constraint("Coincident", 22, 2, 23, 1))
sketch4.addConstraint(Sketcher.Constraint("Coincident", 23, 2, 24, 1))
sketch4.addConstraint(Sketcher.Constraint("Tangent", 24, 2, 25, 1))
sketch4.addConstraint(Sketcher.Constraint("Tangent", 25, 2, 26, 1))
sketch4.addConstraint(Sketcher.Constraint("Coincident", 26, 2, 27, 1))
sketch4.addConstraint(Sketcher.Constraint("Coincident", 27, 2, 28, 1))
sketch4.addConstraint(Sketcher.Constraint("Coincident", 28, 2, 29, 1))
sketch4.addConstraint(Sketcher.Constraint("Coincident", 29, 2, 30, 1))
sketch4.addConstraint(Sketcher.Constraint("Coincident", 30, 2, 31, 1))
sketch4.addConstraint(Sketcher.Constraint("Coincident", 31, 2, 32, 1))
sketch4.addConstraint(Sketcher.Constraint("Coincident", 32, 2, 33, 1))
sketch4.addConstraint(Sketcher.Constraint("Coincident", 33, 2, 34, 1))
sketch4.addConstraint(Sketcher.Constraint("Tangent", 34, 2, 35, 1))
sketch4.addConstraint(Sketcher.Constraint("Tangent", 35, 2, 36, 1))
sketch4.addConstraint(Sketcher.Constraint("Coincident", 36, 2, 37, 1))
sketch4.addConstraint(Sketcher.Constraint("Coincident", 37, 2, 38, 1))
sketch4.addConstraint(Sketcher.Constraint("Coincident", 38, 2, 39, 1))
sketch4.addConstraint(Sketcher.Constraint("Coincident", 39, 2, 0, 1))
sketch4.addConstraint(Sketcher.Constraint("Vertical", 0))
sketch4.addConstraint(Sketcher.Constraint("Horizontal", 3))
sketch4.addConstraint(Sketcher.Constraint("Vertical", 4))
sketch4.addConstraint(Sketcher.Constraint("Horizontal", 6))
sketch4.addConstraint(Sketcher.Constraint("Vertical", 7))
sketch4.addConstraint(Sketcher.Constraint("Vertical", 9))
sketch4.addConstraint(Sketcher.Constraint("Horizontal", 10))
sketch4.addConstraint(Sketcher.Constraint("Vertical", 11))
sketch4.addConstraint(Sketcher.Constraint("Vertical", 13))
sketch4.addConstraint(Sketcher.Constraint("Horizontal", 14))
sketch4.addConstraint(Sketcher.Constraint("Vertical", 16))
sketch4.addConstraint(Sketcher.Constraint("Horizontal", 17))
sketch4.addConstraint(Sketcher.Constraint("Vertical", 20))
sketch4.addConstraint(Sketcher.Constraint("Horizontal", 23))
sketch4.addConstraint(Sketcher.Constraint("Vertical", 24))
sketch4.addConstraint(Sketcher.Constraint("Horizontal", 26))
sketch4.addConstraint(Sketcher.Constraint("Vertical", 27))
sketch4.addConstraint(Sketcher.Constraint("Vertical", 29))
sketch4.addConstraint(Sketcher.Constraint("Horizontal", 30))
sketch4.addConstraint(Sketcher.Constraint("Vertical", 31))
sketch4.addConstraint(Sketcher.Constraint("Vertical", 33))
sketch4.addConstraint(Sketcher.Constraint("Horizontal", 34))
sketch4.addConstraint(Sketcher.Constraint("Vertical", 36))
sketch4.addConstraint(Sketcher.Constraint("Horizontal", 37))
sketch4.addConstraint(Sketcher.Constraint("Coincident", 2, 3, -1, 1))
sketch4.addConstraint(Sketcher.Constraint("Coincident", 8, 3, -1, 1))
sketch4.addConstraint(Sketcher.Constraint("Coincident", 12, 3, -1, 1))
sketch4.addConstraint(Sketcher.Constraint("Coincident", 18, 3, -1, 1))
sketch4.addConstraint(Sketcher.Constraint("Coincident", 22, 3, -1, 1))
sketch4.addConstraint(Sketcher.Constraint("Coincident", 28, 3, -1, 1))
sketch4.addConstraint(Sketcher.Constraint("Coincident", 32, 3, -1, 1))
sketch4.addConstraint(Sketcher.Constraint("Coincident", 38, 3, -1, 1))
sketch4.addConstraint(Sketcher.Constraint("Equal", 2, 8))
sketch4.addConstraint(Sketcher.Constraint("Equal", 8, 12))
sketch4.addConstraint(Sketcher.Constraint("Equal", 5, 15))
sketch4.addConstraint(Sketcher.Constraint("Equal", 12, 18))
sketch4.addConstraint(Sketcher.Constraint("Equal", 18, 22))
sketch4.addConstraint(Sketcher.Constraint("Equal", 15, 25))
sketch4.addConstraint(Sketcher.Constraint("Equal", 22, 28))
sketch4.addConstraint(Sketcher.Constraint("Equal", 28, 32))
sketch4.addConstraint(Sketcher.Constraint("Equal", 25, 35))
sketch4.addConstraint(Sketcher.Constraint("Equal", 32, 38))
sketch4.addConstraint(Sketcher.Constraint("Symmetric", 5, 3, 25, 3, -1, 1))
sketch4.addConstraint(Sketcher.Constraint("Symmetric", 15, 3, 35, 3, -1, 1))
sketch4.addConstraint(Sketcher.Constraint("Symmetric", 9, 2, 29, 2, -1, 1))
sketch4.addConstraint(Sketcher.Constraint("Symmetric", 5, 3, 15, 3, -2))
sketch4.addConstraint(Sketcher.Constraint("Horizontal", 6, 2, 9, 2))
sketch4.addConstraint(Sketcher.Constraint("Horizontal", 8, 2, 11, 2))
sketch4.addConstraint(Sketcher.Constraint("Horizontal", 7, 2, 12, 2))
sketch4.addConstraint(Sketcher.Constraint("Horizontal", 3, 2, 16, 2))
sketch4.addConstraint(Sketcher.Constraint("Horizontal", 28, 2, 31, 2))
sketch4.addConstraint(Sketcher.Constraint("Horizontal", 27, 2, 32, 2))
sketch4.addConstraint(Sketcher.Constraint("Horizontal", 23, 2, 36, 2))
sketch4.addConstraint(Sketcher.Constraint("Vertical", 0, 2, 3, 2))
sketch4.addConstraint(Sketcher.Constraint("Vertical", 16, 2, 19, 2))
sketch4.addConstraint(Sketcher.Constraint("Vertical", 17, 2, 22, 2))
sketch4.addConstraint(Sketcher.Constraint("Vertical", 13, 2, 26, 2))
sketch4.addConstraint(Sketcher.Constraint("Equal", 34, 4))
sketch4.addConstraint(Sketcher.Constraint("Equal", 37, 7))
sketch4.addConstraint(Sketcher.Constraint("Radius", 2, 5.0))
sketch4.addConstraint(Sketcher.Constraint("Radius", 5, 1.0))
sketch4.addConstraint(Sketcher.Constraint("DistanceX", 10, 1, 10, 2, 2.3))
sketch4.addConstraint(Sketcher.Constraint("DistanceX", 6, 1, 6, 2, 2.35))
sketch4.addConstraint(Sketcher.Constraint("DistanceY", 2, 2, -1, 1, 2.7))
sketch4.addConstraint(Sketcher.Constraint("DistanceY", -1, 1, 38, 2, 1.071))
sketch4.addConstraint(Sketcher.Constraint("DistanceY", 0, 2, 0, 1, 2.25826))
sketch4.addConstraint(Sketcher.Constraint("DistanceY", 20, 1, 20, 2, 2.27795))
sketch4.addConstraint(Sketcher.Constraint("DistanceY", -1, 1, 21, 2, 1.1025))
sketch4.addConstraint(Sketcher.Constraint("DistanceY", 18, 2, 19, 2, 0.0019))
sketch4.addConstraint(Sketcher.Constraint("Distance", 19, 1.189679))
sketch4.addConstraint(Sketcher.Constraint("DistanceY", 0, 2, -1, 1, 1.19102))
sketch4.addConstraint(Sketcher.Constraint("DistanceY", 1, 2, -1, 1, 1.18911))
pocket3 = body.newObject("PartDesign::Pocket", "Pocket002")
pocket3.Profile = sketch4
pocket3.Length = 6000

sketch5 = body.newObject("Sketcher::SketchObject", "Sketch004")
sketch5.AttachmentSupport = (doc.getObject("XY_Plane"), [""])
sketch5.MapMode = "FlatFace"
sketch5.addGeometry(Part.LineSegment(V(12, 17.05, 0), V(12, 12.5, 0)), False)
sketch5.addGeometry(Part.ArcOfCircle(Part.Circle(V(12.5, 12.5, 0), V(0, 0, 1), 0.5), math.radians(180), math.radians(270)), False)
sketch5.addGeometry(Part.LineSegment(V(12.5, 12, 0), V(17.05, 12, 0)), False)
sketch5.addGeometry(Part.ArcOfCircle(Part.Circle(V(17.05, 12.5, 0), V(0, 0, 1), 0.5), math.radians(-90), math.radians(0)), False)
sketch5.addGeometry(Part.LineSegment(V(17.55, 12.5, 0), V(17.55, 16.05, 0)), False)
sketch5.addGeometry(Part.ArcOfCircle(Part.Circle(V(16.05, 16.05, 0), V(0, 0, 1), 1.5), math.radians(0), math.radians(90)), False)
sketch5.addGeometry(Part.LineSegment(V(16.05, 17.55, 0), V(12.5, 17.55, 0)), False)
sketch5.addGeometry(Part.ArcOfCircle(Part.Circle(V(12.5, 17.05, 0), V(0, 0, 1), 0.5), math.radians(90), math.radians(180)), False)
sketch5.addConstraint(Sketcher.Constraint("Tangent", 0, 2, 1, 1))
sketch5.addConstraint(Sketcher.Constraint("Tangent", 1, 2, 2, 1))
sketch5.addConstraint(Sketcher.Constraint("Tangent", 2, 2, 3, 1))
sketch5.addConstraint(Sketcher.Constraint("Tangent", 3, 2, 4, 1))
sketch5.addConstraint(Sketcher.Constraint("Tangent", 4, 2, 5, 1))
sketch5.addConstraint(Sketcher.Constraint("Tangent", 5, 2, 6, 1))
sketch5.addConstraint(Sketcher.Constraint("Tangent", 6, 2, 7, 1))
sketch5.addConstraint(Sketcher.Constraint("Tangent", 7, 2, 0, 1))
sketch5.addConstraint(Sketcher.Constraint("Vertical", 0))
sketch5.addConstraint(Sketcher.Constraint("Horizontal", 2))
sketch5.addConstraint(Sketcher.Constraint("Vertical", 4))
sketch5.addConstraint(Sketcher.Constraint("Horizontal", 6))
sketch5.addConstraint(Sketcher.Constraint("Equal", 1, 3))
sketch5.addConstraint(Sketcher.Constraint("Equal", 3, 7))
sketch5.addConstraint(Sketcher.Constraint("Equal", 2, 0))
sketch5.addConstraint(Sketcher.Constraint("Radius", 1, 0.5))
sketch5.addConstraint(Sketcher.Constraint("Radius", 5, 1.5))
sketch5.addConstraint(Sketcher.Constraint("DistanceX", -1, 1, 0, 2, 12.0))
sketch5.addConstraint(Sketcher.Constraint("DistanceY", -1, 1, 1, 2, 12.0))
sketch5.addConstraint(Sketcher.Constraint("DistanceX", 2, 1, 2, 2, 4.55))
pocket4 = body.newObject("PartDesign::Pocket", "Pocket003")
pocket4.Profile = sketch5
pocket4.Length = 6000

sketch6 = body.newObject("Sketcher::SketchObject", "Sketch005")
sketch6.AttachmentSupport = (doc.getObject("XY_Plane"), [""])
sketch6.MapMode = "FlatFace"
sketch6.addGeometry(Part.LineSegment(V(-17.05, 12, 0), V(-12.5, 12, 0)), False)
sketch6.addGeometry(Part.ArcOfCircle(Part.Circle(V(-12.5, 12.5, 0), V(0, 0, 1), 0.5), math.radians(-90), math.radians(0)), False)
sketch6.addGeometry(Part.LineSegment(V(-12, 12.5, 0), V(-12, 17.05, 0)), False)
sketch6.addGeometry(Part.ArcOfCircle(Part.Circle(V(-12.5, 17.05, 0), V(0, 0, 1), 0.5), math.radians(0), math.radians(90)), False)
sketch6.addGeometry(Part.LineSegment(V(-12.5, 17.55, 0), V(-16.05, 17.55, 0)), False)
sketch6.addGeometry(Part.ArcOfCircle(Part.Circle(V(-16.05, 16.05, 0), V(0, 0, 1), 1.5), math.radians(90), math.radians(180)), False)
sketch6.addGeometry(Part.LineSegment(V(-17.55, 16.05, 0), V(-17.55, 12.5, 0)), False)
sketch6.addGeometry(Part.ArcOfCircle(Part.Circle(V(-17.05, 12.5, 0), V(0, 0, 1), 0.5), math.radians(180), math.radians(270)), False)
sketch6.addConstraint(Sketcher.Constraint("Tangent", 0, 2, 1, 1))
sketch6.addConstraint(Sketcher.Constraint("Tangent", 1, 2, 2, 1))
sketch6.addConstraint(Sketcher.Constraint("Tangent", 2, 2, 3, 1))
sketch6.addConstraint(Sketcher.Constraint("Tangent", 3, 2, 4, 1))
sketch6.addConstraint(Sketcher.Constraint("Tangent", 4, 2, 5, 1))
sketch6.addConstraint(Sketcher.Constraint("Tangent", 5, 2, 6, 1))
sketch6.addConstraint(Sketcher.Constraint("Tangent", 6, 2, 7, 1))
sketch6.addConstraint(Sketcher.Constraint("Tangent", 7, 2, 0, 1))
sketch6.addConstraint(Sketcher.Constraint("Horizontal", 0))
sketch6.addConstraint(Sketcher.Constraint("Vertical", 2))
sketch6.addConstraint(Sketcher.Constraint("Horizontal", 4))
sketch6.addConstraint(Sketcher.Constraint("Vertical", 6))
sketch6.addConstraint(Sketcher.Constraint("Equal", 1, 3))
sketch6.addConstraint(Sketcher.Constraint("Equal", 3, 7))
sketch6.addConstraint(Sketcher.Constraint("Equal", 0, 2))
sketch6.addConstraint(Sketcher.Constraint("Radius", 1, 0.5))
sketch6.addConstraint(Sketcher.Constraint("Radius", 5, 1.5))
sketch6.addConstraint(Sketcher.Constraint("DistanceY", -1, 1, 0, 2, 12.0))
sketch6.addConstraint(Sketcher.Constraint("DistanceX", 1, 2, -1, 1, 12.0))
sketch6.addConstraint(Sketcher.Constraint("DistanceX", 0, 1, 0, 2, 4.55))
pocket5 = body.newObject("PartDesign::Pocket", "Pocket004")
pocket5.Profile = sketch6
pocket5.Length = 6000

sketch7 = body.newObject("Sketcher::SketchObject", "Sketch006")
sketch7.AttachmentSupport = (doc.getObject("XZ_Plane"), [""])
sketch7.MapMode = "FlatFace"
add_polygon(sketch7, [(4.95, -33), (-20.05, -33), (-20.05, -26.4), (3.95, -26.4), (4.8, -27.25), (4.95, -27.25)])
sketch7.addGeometry(Part.LineSegment(V(-20.05, -33, 0), V(4.95, -33, 0)), True)
sketch7.addConstraint(Sketcher.Constraint("Horizontal", 0))
sketch7.addConstraint(Sketcher.Constraint("Vertical", 1))
sketch7.addConstraint(Sketcher.Constraint("Horizontal", 2))
sketch7.addConstraint(Sketcher.Constraint("Horizontal", 4))
sketch7.addConstraint(Sketcher.Constraint("Vertical", 5))
sketch7.addConstraint(Sketcher.Constraint("Horizontal", 6))
sketch7.addConstraint(Sketcher.Constraint("Coincident", 6, 1, 0, 2))
sketch7.addConstraint(Sketcher.Constraint("Vertical", 4, 2, 6, 2))
sketch7.addConstraint(Sketcher.Constraint("DistanceX", 0, 2, 0, 1, 25.0))
sketch7.addConstraint(Sketcher.Constraint("DistanceX", 2, 1, 2, 2, 24.0))
sketch7.addConstraint(Sketcher.Constraint("Angle", 3, Q("-44.999991 deg")))
sketch7.addConstraint(Sketcher.Constraint("DistanceY", 1, 1, 1, 2, 6.6))
sketch7.addConstraint(Sketcher.Constraint("DistanceY", 0, 2, -1, 1, 33.0))
sketch7.addConstraint(Sketcher.Constraint("DistanceX", 4, 1, 4, 2, 0.15))
sketch7.addConstraint(Sketcher.Constraint("DistanceX", -1, 1, 3, 2, 4.8))
groove = body.newObject("PartDesign::Groove", "Groove")
groove.Profile = sketch7
groove.ReferenceAxis = (sketch7, ["Axis0"])
groove.Angle = 360

sketch8 = body.newObject("Sketcher::SketchObject", "Sketch007")
sketch8.AttachmentSupport = (doc.getObject("XZ_Plane"), [""])
sketch8.MapMode = "FlatFace"
add_polygon(sketch8, [(4.95, -500.4), (-20.05, -500.4), (-20.05, -493.8), (3.95, -493.8), (4.8, -494.65), (4.95, -494.65)])
sketch8.addGeometry(Part.LineSegment(V(-20.05, -500.4, 0), V(4.95, -500.4, 0)), True)
sketch8.addConstraint(Sketcher.Constraint("Horizontal", 0))
sketch8.addConstraint(Sketcher.Constraint("Vertical", 1))
sketch8.addConstraint(Sketcher.Constraint("Horizontal", 2))
sketch8.addConstraint(Sketcher.Constraint("Horizontal", 4))
sketch8.addConstraint(Sketcher.Constraint("Vertical", 5))
sketch8.addConstraint(Sketcher.Constraint("Horizontal", 6))
sketch8.addConstraint(Sketcher.Constraint("Coincident", 6, 1, 0, 2))
sketch8.addConstraint(Sketcher.Constraint("Vertical", 4, 2, 6, 2))
sketch8.addConstraint(Sketcher.Constraint("DistanceX", 0, 2, 0, 1, 25.0))
sketch8.addConstraint(Sketcher.Constraint("DistanceX", 2, 1, 2, 2, 24.0))
sketch8.addConstraint(Sketcher.Constraint("Angle", 3, Q("-44.999991 deg")))
sketch8.addConstraint(Sketcher.Constraint("DistanceY", 1, 1, 1, 2, 6.6))
sketch8.addConstraint(Sketcher.Constraint("DistanceX", 4, 1, 4, 2, 0.15))
sketch8.addConstraint(Sketcher.Constraint("DistanceY", 0, 2, -1, 1, 500.4))
sketch8.addConstraint(Sketcher.Constraint("DistanceX", -1, 1, 3, 2, 4.8))
groove2 = body.newObject("PartDesign::Groove", "Groove001")
groove2.Profile = sketch8
groove2.ReferenceAxis = (sketch8, ["Axis0"])
groove2.Angle = 360

doc.recompute()
